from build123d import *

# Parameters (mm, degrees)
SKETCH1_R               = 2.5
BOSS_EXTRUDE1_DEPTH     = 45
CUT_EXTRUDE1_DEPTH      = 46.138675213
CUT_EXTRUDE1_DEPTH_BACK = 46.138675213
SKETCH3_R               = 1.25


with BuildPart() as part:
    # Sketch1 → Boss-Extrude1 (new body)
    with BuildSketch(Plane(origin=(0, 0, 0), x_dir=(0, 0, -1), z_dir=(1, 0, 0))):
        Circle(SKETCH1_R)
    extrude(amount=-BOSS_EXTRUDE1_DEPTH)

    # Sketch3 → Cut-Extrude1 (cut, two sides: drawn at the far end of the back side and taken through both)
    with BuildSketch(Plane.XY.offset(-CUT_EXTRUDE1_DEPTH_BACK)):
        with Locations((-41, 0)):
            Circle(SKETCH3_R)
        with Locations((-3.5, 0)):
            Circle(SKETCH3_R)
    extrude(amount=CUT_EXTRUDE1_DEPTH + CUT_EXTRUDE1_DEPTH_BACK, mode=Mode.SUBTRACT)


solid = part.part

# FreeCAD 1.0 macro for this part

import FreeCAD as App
import Part
import Sketcher

V = App.Vector
Q = App.Units.Quantity

doc = App.newDocument("Part")
body = doc.addObject("PartDesign::Body", "Body")

# Sketch on YZ plane
sketch1 = doc.addObject("Sketcher::SketchObject", "Sketch")
body.addObject(sketch1)
sketch1.AttachmentSupport = (doc.YZ_Plane, [""])
sketch1.MapMode = "FlatFace"
sketch1.addGeometry(Part.Circle(V(0, 0, 0), V(0, 0, 1), 2.5), False)
sketch1.addConstraint([
    Sketcher.Constraint("Coincident", 0, 3, -1, 1),
    Sketcher.Constraint("Diameter", 0, Q("5 mm")),
])
pad1 = doc.addObject("PartDesign::Pad", "Pad")
body.addObject(pad1)
pad1.Profile = sketch1
pad1.Length = 45
pad1.Reversed = True

# Sketch on XY plane
sketch2 = doc.addObject("Sketcher::SketchObject", "Sketch001")
body.addObject(sketch2)
sketch2.AttachmentSupport = (doc.XY_Plane, [""])
sketch2.MapMode = "FlatFace"
sketch2.addGeometry([
    Part.Circle(V(-41, 0, 0), V(0, 0, 1), 1.2),
    Part.Circle(V(-3.5, 0, 0), V(0, 0, 1), 1.2),
], False)
sketch2.addConstraint([
    Sketcher.Constraint("Equal", 0, 1),
    Sketcher.Constraint("PointOnObject", 0, 3, -1),
    Sketcher.Constraint("PointOnObject", 1, 3, -1),
    Sketcher.Constraint("Diameter", 0, Q("2.5 mm")),
    Sketcher.Constraint("DistanceX", 0, 3, -1, 1, Q("41 mm")),
    Sketcher.Constraint("DistanceX", 1, 3, -1, 1, Q("3.5 mm")),
])
pocket1 = doc.addObject("PartDesign::Pocket", "Pocket")
body.addObject(pocket1)
pocket1.Profile = sketch2
pocket1.Type = "ThroughAll"
pocket1.Midplane = True

doc.recompute()
